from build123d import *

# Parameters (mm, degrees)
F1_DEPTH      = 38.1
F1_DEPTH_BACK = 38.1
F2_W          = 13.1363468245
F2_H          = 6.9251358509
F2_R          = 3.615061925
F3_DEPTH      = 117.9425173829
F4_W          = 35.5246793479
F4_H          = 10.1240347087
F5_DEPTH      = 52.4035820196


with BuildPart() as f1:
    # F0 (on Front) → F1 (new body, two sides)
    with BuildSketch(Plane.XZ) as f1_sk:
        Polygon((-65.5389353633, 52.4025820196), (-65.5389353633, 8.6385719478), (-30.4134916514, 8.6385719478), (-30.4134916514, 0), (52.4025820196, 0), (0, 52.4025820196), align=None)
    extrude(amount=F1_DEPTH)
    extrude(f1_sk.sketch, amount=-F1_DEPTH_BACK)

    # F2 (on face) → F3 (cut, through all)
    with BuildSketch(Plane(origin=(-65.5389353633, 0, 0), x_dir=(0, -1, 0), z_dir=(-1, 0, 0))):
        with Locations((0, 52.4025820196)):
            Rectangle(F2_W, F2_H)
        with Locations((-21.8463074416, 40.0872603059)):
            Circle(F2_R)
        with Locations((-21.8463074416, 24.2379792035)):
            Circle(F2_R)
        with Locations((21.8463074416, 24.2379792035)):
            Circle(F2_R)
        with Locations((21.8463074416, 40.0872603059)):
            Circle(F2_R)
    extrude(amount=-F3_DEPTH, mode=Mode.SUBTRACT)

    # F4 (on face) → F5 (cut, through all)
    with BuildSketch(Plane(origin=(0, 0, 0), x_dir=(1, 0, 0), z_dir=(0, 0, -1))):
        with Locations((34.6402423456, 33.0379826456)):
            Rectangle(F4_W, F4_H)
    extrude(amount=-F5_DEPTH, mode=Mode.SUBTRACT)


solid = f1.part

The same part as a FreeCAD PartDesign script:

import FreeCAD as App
import Part
import Sketcher
from FreeCAD import Vector
Q = App.Units.Quantity

doc = App.newDocument("Part")
params = doc.addObject("Spreadsheet::Sheet", "Params")
for row, (alias, value) in enumerate([
    ("pad1_length", "1.5 in"),
    ("pad1_length2", "1.5 in"),
], start=1):
    params.set(f"A{row}", alias)
    params.set(f"B{row}", "=" + value)
    params.setAlias(f"B{row}", alias)

body = doc.addObject("PartDesign::Body", "Body")

# Sketch on XZ plane
sketch1 = body.newObject("Sketcher::SketchObject", "Sketch")
sketch1.AttachmentSupport = (doc.getObject("XZ_Plane"), [""])
sketch1.MapMode = "FlatFace"
sketch1.addGeometry(Part.LineSegment(Vector(-65.538935, 52.402582, 0), Vector(-65.538935, 8.638572, 0)), False)
sketch1.addGeometry(Part.LineSegment(Vector(-65.538935, 8.638572, 0), Vector(-30.413492, 8.638572, 0)), False)
sketch1.addGeometry(Part.LineSegment(Vector(-30.413492, 8.638572, 0), Vector(-30.413492, 0, 0)), False)
sketch1.addGeometry(Part.LineSegment(Vector(-30.413492, 0, 0), Vector(52.402582, 0, 0)), False)
sketch1.addGeometry(Part.LineSegment(Vector(52.402582, 0, 0), Vector(0, 52.402582, 0)), False)
sketch1.addGeometry(Part.LineSegment(Vector(0, 52.402582, 0), Vector(-65.538935, 52.402582, 0)), False)
sketch1.addConstraint(Sketcher.Constraint("Coincident", 0, 2, 1, 1))
sketch1.addConstraint(Sketcher.Constraint("Coincident", 1, 2, 2, 1))
sketch1.addConstraint(Sketcher.Constraint("Coincident", 2, 2, 3, 1))
sketch1.addConstraint(Sketcher.Constraint("Coincident", 3, 2, 4, 1))
sketch1.addConstraint(Sketcher.Constraint("Coincident", 4, 2, 5, 1))
sketch1.addConstraint(Sketcher.Constraint("Coincident", 5, 2, 0, 1))
sketch1.addConstraint(Sketcher.Constraint("Vertical", 0))
sketch1.addConstraint(Sketcher.Constraint("Horizontal", 1))
sketch1.addConstraint(Sketcher.Constraint("Vertical", 2))
sketch1.addConstraint(Sketcher.Constraint("Horizontal", 3))
sketch1.addConstraint(Sketcher.Constraint("Horizontal", 5))
sketch1.addConstraint(Sketcher.Constraint("PointOnObject", 2, 2, -1))
sketch1.addConstraint(Sketcher.Constraint("PointOnObject", 4, 2, -2))
sketch1.addConstraint(Sketcher.Constraint("Angle", 4, Q("135 deg")))
sketch1.addConstraint(Sketcher.Constraint("DistanceY", 0, 2, 0, 1, 43.76401))
sketch1.addConstraint(Sketcher.Constraint("DistanceY", 2, 2, 2, 1, 8.638572))
sketch1.addConstraint(Sketcher.Constraint("DistanceX", 1, 1, 1, 2, 35.125444))
sketch1.addConstraint(Sketcher.Constraint("DistanceX", 3, 1, 3, 2, 82.816074))
pad1 = body.newObject("PartDesign::Pad", "Pad")
pad1.Profile = sketch1
pad1.Type = "TwoLengths"
pad1.setExpression("Length", "Params.pad1_length")
pad1.setExpression("Length2", "Params.pad1_length2")

# Sketch on YZ plane
sketch2 = body.newObject("Sketcher::SketchObject", "Sketch001")
sketch2.AttachmentSupport = (doc.getObject("YZ_Plane"), [""])
sketch2.MapMode = "FlatFace"
sketch2.AttachmentOffset = App.Placement(Vector(0, 0, -65.538935), App.Rotation())
sketch2.addGeometry(Part.LineSegment(Vector(6.568173, 55.86515, 0), Vector(6.568173, 48.940014, 0)), False)
sketch2.addGeometry(Part.LineSegment(Vector(6.568173, 48.940014, 0), Vector(-6.568173, 48.940014, 0)), False)
sketch2.addGeometry(Part.LineSegment(Vector(-6.568173, 48.940014, 0), Vector(-6.568173, 55.86515, 0)), False)
sketch2.addGeometry(Part.LineSegment(Vector(-6.568173, 55.86515, 0), Vector(6.568173, 55.86515, 0)), False)
sketch2.addGeometry(Part.Circle(Vector(21.846307, 40.08726, 0), Vector(0, 0, 1), 3.615062), False)
sketch2.addGeometry(Part.Circle(Vector(21.846307, 24.237979, 0), Vector(0, 0, 1), 3.615062), False)
sketch2.addGeometry(Part.Circle(Vector(-21.846307, 24.237979, 0), Vector(0, 0, 1), 3.615062), False)
sketch2.addGeometry(Part.Circle(Vector(-21.846307, 40.08726, 0), Vector(0, 0, 1), 3.615062), False)
sketch2.addConstraint(Sketcher.Constraint("Coincident", 0, 2, 1, 1))
sketch2.addConstraint(Sketcher.Constraint("Coincident", 1, 2, 2, 1))
sketch2.addConstraint(Sketcher.Constraint("Coincident", 2, 2, 3, 1))
sketch2.addConstraint(Sketcher.Constraint("Coincident", 3, 2, 0, 1))
sketch2.addConstraint(Sketcher.Constraint("Vertical", 0))
sketch2.addConstraint(Sketcher.Constraint("Horizontal", 1))
sketch2.addConstraint(Sketcher.Constraint("Vertical", 2))
sketch2.addConstraint(Sketcher.Constraint("Horizontal", 3))
sketch2.addConstraint(Sketcher.Constraint("Equal", 4, 5))
sketch2.addConstraint(Sketcher.Constraint("Equal", 5, 6))
sketch2.addConstraint(Sketcher.Constraint("Equal", 6, 7))
sketch2.addConstraint(Sketcher.Constraint("Symmetric", 5, 3, 6, 3, -2))
sketch2.addConstraint(Sketcher.Constraint("Symmetric", 4, 3, 7, 3, -2))
sketch2.addConstraint(Sketcher.Constraint("Vertical", 4, 3, 5, 3))
sketch2.addConstraint(Sketcher.Constraint("Diameter", 4, 7.230124))
sketch2.addConstraint(Sketcher.Constraint("DistanceX", 1, 2, 1, 1, 13.136347))
sketch2.addConstraint(Sketcher.Constraint("DistanceY", 0, 2, 0, 1, 6.925136))
sketch2.addConstraint(Sketcher.Constraint("DistanceY", -1, 1, 4, 3, 40.08726))
sketch2.addConstraint(Sketcher.Constraint("DistanceY", -1, 1, 5, 3, 24.237979))
sketch2.addConstraint(Sketcher.Constraint("DistanceY", -1, 1, 2, 2, 55.86515))
sketch2.addConstraint(Sketcher.Constraint("DistanceX", 7, 3, 0, 2, 28.414481))
sketch2.addConstraint(Sketcher.Constraint("DistanceX", 1, 2, 4, 3, 28.414481))
pocket1 = body.newObject("PartDesign::Pocket", "Pocket")
pocket1.Profile = sketch2
pocket1.Type = "ThroughAll"
pocket1.Reversed = True

# Sketch on XY plane
sketch3 = body.newObject("Sketcher::SketchObject", "Sketch002")
sketch3.AttachmentSupport = (doc.getObject("XY_Plane"), [""])
sketch3.MapMode = "FlatFace"
sketch3.addGeometry(Part.LineSegment(Vector(16.877903, -38.1, 0), Vector(16.877903, -27.975965, 0)), False)
sketch3.addGeometry(Part.LineSegment(Vector(16.877903, -27.975965, 0), Vector(52.402582, -27.975965, 0)), False)
sketch3.addGeometry(Part.LineSegment(Vector(52.402582, -27.975965, 0), Vector(52.402582, -38.1, 0)), False)
sketch3.addGeometry(Part.LineSegment(Vector(52.402582, -38.1, 0), Vector(16.877903, -38.1, 0)), False)
sketch3.addConstraint(Sketcher.Constraint("Coincident", 0, 2, 1, 1))
sketch3.addConstraint(Sketcher.Constraint("Coincident", 1, 2, 2, 1))
sketch3.addConstraint(Sketcher.Constraint("Coincident", 2, 2, 3, 1))
sketch3.addConstraint(Sketcher.Constraint("Coincident", 3, 2, 0, 1))
sketch3.addConstraint(Sketcher.Constraint("Vertical", 0))
sketch3.addConstraint(Sketcher.Constraint("Horizontal", 1))
sketch3.addConstraint(Sketcher.Constraint("Vertical", 2))
sketch3.addConstraint(Sketcher.Constraint("Horizontal", 3))
sketch3.addConstraint(Sketcher.Constraint("DistanceY", 2, 2, -1, 1, Q("1.5 in")))
sketch3.addConstraint(Sketcher.Constraint("DistanceX", 1, 1, 1, 2, 35.524679))
sketch3.addConstraint(Sketcher.Constraint("DistanceY", 0, 1, 0, 2, 10.124035))
sketch3.addConstraint(Sketcher.Constraint("DistanceX", -1, 1, 0, 2, 16.877903))
pocket2 = body.newObject("PartDesign::Pocket", "Pocket001")
pocket2.Profile = sketch3
pocket2.Type = "ThroughAll"
pocket2.Reversed = True

doc.recompute()
